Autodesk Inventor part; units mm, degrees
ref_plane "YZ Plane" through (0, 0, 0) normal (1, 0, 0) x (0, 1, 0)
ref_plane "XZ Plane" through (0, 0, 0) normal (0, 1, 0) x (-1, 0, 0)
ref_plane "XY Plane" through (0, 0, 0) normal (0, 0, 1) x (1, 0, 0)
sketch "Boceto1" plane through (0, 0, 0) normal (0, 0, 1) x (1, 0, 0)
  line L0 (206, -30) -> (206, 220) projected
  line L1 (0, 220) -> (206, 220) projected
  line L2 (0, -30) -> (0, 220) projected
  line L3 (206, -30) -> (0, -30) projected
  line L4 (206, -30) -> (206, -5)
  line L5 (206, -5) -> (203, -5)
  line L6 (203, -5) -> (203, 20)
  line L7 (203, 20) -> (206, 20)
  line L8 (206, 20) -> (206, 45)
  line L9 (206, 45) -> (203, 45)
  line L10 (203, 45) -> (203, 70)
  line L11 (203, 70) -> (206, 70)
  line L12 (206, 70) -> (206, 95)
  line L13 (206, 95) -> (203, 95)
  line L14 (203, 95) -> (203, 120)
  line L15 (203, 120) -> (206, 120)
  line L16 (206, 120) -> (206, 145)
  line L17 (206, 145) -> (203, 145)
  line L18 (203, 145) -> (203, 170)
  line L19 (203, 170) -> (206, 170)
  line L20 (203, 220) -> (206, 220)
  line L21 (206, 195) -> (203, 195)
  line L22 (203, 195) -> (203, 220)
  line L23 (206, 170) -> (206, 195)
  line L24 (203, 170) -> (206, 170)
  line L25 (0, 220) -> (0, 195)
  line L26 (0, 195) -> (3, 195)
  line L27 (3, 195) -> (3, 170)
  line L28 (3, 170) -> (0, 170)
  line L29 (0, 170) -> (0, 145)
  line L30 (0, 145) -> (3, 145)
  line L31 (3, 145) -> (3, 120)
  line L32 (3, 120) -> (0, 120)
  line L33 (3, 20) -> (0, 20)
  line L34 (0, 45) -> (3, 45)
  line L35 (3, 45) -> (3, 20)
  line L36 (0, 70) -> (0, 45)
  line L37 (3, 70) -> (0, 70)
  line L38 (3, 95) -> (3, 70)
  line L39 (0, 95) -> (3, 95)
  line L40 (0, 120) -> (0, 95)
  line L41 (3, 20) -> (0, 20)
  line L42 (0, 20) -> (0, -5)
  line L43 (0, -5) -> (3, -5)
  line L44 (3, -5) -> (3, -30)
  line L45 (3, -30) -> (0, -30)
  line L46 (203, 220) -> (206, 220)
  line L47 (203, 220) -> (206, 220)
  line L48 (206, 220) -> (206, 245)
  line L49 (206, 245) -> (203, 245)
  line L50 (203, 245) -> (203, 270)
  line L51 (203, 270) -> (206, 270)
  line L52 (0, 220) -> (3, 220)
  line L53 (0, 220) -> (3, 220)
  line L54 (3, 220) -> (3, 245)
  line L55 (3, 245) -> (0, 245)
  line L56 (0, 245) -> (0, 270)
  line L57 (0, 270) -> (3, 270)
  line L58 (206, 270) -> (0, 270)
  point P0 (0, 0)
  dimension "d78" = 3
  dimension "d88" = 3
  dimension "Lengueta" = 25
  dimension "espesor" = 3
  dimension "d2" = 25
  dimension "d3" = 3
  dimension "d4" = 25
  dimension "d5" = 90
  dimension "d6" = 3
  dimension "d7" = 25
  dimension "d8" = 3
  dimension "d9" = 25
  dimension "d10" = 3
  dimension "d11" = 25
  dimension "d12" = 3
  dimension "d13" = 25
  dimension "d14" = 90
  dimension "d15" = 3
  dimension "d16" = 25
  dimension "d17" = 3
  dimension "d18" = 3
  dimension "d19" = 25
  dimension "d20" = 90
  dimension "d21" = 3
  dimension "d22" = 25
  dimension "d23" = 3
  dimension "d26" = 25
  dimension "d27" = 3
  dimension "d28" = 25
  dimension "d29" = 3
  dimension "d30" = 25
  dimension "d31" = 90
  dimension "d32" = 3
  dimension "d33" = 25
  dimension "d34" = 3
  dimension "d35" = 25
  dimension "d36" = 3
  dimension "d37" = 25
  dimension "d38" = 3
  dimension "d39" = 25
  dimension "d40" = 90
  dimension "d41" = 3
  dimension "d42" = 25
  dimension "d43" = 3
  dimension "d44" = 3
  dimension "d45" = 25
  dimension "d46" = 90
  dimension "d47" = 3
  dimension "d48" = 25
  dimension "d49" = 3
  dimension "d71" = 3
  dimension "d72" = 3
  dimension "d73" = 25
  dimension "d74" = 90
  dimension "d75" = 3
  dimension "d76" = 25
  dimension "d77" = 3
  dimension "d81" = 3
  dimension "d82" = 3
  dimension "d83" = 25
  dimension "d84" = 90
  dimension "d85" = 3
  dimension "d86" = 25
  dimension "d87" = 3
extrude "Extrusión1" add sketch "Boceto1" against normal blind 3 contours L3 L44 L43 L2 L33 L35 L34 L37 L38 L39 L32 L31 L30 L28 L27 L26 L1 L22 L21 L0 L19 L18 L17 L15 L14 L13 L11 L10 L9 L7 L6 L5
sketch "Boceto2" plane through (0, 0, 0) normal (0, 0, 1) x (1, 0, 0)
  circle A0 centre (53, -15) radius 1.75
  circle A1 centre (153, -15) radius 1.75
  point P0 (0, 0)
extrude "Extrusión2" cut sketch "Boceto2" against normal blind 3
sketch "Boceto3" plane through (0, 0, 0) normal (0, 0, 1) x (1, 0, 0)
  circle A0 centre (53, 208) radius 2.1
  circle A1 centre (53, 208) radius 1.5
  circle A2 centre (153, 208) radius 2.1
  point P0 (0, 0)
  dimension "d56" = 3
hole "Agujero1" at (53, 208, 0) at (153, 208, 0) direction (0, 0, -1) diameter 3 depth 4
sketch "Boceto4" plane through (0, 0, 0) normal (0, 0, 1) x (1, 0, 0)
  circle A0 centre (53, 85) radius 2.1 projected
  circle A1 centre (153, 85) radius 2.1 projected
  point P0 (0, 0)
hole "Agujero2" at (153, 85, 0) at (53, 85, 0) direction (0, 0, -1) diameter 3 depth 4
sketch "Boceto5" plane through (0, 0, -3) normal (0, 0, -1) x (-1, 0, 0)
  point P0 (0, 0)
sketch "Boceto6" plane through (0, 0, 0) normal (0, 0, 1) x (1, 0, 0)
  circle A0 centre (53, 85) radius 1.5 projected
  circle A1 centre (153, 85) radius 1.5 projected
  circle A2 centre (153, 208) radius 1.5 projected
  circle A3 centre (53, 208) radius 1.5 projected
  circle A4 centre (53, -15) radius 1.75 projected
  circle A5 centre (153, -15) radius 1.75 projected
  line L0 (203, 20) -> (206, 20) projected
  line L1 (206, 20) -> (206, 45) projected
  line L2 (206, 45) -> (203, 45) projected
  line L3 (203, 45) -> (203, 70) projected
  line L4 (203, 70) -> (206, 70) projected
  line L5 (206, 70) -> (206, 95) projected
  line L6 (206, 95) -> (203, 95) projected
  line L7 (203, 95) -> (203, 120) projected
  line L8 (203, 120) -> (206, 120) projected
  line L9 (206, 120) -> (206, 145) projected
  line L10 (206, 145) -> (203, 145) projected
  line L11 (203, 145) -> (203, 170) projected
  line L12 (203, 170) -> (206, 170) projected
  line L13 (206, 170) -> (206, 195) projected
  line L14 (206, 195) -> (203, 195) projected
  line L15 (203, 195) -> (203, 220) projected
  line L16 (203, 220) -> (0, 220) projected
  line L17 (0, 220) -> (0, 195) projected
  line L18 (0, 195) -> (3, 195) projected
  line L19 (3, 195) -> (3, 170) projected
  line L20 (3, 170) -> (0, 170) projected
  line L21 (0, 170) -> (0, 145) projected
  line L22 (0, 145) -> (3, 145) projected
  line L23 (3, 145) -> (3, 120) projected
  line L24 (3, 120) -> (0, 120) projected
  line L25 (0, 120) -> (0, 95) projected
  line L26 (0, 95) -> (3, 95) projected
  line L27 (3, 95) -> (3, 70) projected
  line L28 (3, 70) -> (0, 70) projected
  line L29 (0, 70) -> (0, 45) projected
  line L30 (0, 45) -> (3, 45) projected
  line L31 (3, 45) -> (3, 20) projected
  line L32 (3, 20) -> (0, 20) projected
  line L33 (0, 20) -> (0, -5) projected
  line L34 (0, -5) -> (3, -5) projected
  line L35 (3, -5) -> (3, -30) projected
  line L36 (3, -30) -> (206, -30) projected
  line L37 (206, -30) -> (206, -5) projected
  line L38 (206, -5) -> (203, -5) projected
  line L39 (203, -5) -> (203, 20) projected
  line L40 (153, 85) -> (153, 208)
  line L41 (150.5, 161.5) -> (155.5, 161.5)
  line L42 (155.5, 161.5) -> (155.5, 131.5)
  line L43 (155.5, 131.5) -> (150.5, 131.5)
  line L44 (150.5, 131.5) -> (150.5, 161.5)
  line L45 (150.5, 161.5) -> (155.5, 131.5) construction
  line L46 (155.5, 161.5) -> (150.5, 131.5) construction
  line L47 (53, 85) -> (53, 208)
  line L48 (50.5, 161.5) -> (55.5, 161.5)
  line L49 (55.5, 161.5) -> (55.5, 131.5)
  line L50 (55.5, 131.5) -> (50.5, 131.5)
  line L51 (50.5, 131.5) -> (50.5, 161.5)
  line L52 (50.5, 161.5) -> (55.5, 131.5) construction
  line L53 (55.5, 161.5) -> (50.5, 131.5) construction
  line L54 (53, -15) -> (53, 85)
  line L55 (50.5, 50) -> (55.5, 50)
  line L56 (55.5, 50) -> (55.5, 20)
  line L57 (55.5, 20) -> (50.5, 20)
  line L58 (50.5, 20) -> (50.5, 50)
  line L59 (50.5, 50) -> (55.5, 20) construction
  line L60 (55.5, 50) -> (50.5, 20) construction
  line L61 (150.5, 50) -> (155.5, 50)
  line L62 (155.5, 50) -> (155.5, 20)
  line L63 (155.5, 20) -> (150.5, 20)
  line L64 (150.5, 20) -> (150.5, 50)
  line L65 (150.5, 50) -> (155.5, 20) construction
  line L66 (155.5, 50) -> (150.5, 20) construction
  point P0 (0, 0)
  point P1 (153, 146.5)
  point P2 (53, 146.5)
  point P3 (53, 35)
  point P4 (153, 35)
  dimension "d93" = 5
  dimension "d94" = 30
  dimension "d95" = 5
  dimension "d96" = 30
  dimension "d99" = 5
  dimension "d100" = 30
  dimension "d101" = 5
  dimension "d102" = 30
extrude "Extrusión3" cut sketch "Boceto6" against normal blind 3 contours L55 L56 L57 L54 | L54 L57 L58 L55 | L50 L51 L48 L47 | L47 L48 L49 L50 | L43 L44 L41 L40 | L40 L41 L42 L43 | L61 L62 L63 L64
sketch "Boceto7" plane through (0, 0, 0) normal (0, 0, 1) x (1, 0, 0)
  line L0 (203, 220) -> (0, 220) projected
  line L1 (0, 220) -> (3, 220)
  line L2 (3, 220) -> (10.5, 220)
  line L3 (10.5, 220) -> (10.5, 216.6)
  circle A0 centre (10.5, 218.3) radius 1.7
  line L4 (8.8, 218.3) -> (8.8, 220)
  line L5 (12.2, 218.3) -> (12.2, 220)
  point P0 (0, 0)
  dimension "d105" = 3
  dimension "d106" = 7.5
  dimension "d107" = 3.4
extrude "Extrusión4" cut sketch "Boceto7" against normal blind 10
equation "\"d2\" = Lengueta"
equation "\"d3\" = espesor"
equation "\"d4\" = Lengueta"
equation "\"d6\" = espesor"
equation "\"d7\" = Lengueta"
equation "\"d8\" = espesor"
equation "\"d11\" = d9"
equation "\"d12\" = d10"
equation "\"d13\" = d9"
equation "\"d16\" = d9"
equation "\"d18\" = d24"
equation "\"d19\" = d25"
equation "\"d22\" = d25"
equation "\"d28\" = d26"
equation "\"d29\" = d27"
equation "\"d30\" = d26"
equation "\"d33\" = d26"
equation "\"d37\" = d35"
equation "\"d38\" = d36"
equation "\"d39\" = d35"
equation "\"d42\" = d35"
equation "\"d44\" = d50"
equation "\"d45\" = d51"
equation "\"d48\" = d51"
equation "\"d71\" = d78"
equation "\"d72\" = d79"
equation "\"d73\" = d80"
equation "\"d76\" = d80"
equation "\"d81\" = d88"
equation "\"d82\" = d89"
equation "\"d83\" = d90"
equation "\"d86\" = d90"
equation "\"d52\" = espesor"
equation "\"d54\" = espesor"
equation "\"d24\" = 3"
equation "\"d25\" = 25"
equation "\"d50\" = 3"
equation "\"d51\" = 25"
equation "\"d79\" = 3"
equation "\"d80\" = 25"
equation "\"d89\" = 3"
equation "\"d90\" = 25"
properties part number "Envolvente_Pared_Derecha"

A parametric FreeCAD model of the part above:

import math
import FreeCAD as App
import Part
import Sketcher

V = App.Vector
Q = App.Units.Quantity

doc = App.newDocument("Part")
body = doc.addObject("PartDesign::Body", "Body")

# Sketch on XY plane
sketch1 = body.newObject("Sketcher::SketchObject", "Sketch")
sketch1.AttachmentSupport = (doc.getObject("XY_Plane"), [""])
sketch1.MapMode = "FlatFace"
sketch1.addGeometry(Part.LineSegment(V(3, -30, 0), V(206, -30, 0)), False)
sketch1.addGeometry(Part.LineSegment(V(206, -30, 0), V(206, -5, 0)), False)
sketch1.addGeometry(Part.LineSegment(V(206, -5, 0), V(203, -5, 0)), False)
sketch1.addGeometry(Part.LineSegment(V(203, -5, 0), V(203, 20, 0)), False)
sketch1.addGeometry(Part.LineSegment(V(203, 20, 0), V(206, 20, 0)), False)
sketch1.addGeometry(Part.LineSegment(V(206, 20, 0), V(206, 45, 0)), False)
sketch1.addGeometry(Part.LineSegment(V(206, 45, 0), V(203, 45, 0)), False)
sketch1.addGeometry(Part.LineSegment(V(203, 45, 0), V(203, 70, 0)), False)
sketch1.addGeometry(Part.LineSegment(V(203, 70, 0), V(206, 70, 0)), False)
sketch1.addGeometry(Part.LineSegment(V(206, 70, 0), V(206, 95, 0)), False)
sketch1.addGeometry(Part.LineSegment(V(206, 95, 0), V(203, 95, 0)), False)
sketch1.addGeometry(Part.LineSegment(V(203, 95, 0), V(203, 120, 0)), False)
sketch1.addGeometry(Part.LineSegment(V(203, 120, 0), V(206, 120, 0)), False)
sketch1.addGeometry(Part.LineSegment(V(206, 120, 0), V(206, 145, 0)), False)
sketch1.addGeometry(Part.LineSegment(V(206, 145, 0), V(203, 145, 0)), False)
sketch1.addGeometry(Part.LineSegment(V(203, 145, 0), V(203, 170, 0)), False)
sketch1.addGeometry(Part.LineSegment(V(203, 170, 0), V(206, 170, 0)), False)
sketch1.addGeometry(Part.LineSegment(V(206, 170, 0), V(206, 195, 0)), False)
sketch1.addGeometry(Part.LineSegment(V(206, 195, 0), V(203, 195, 0)), False)
sketch1.addGeometry(Part.LineSegment(V(203, 195, 0), V(203, 220, 0)), False)
sketch1.addGeometry(Part.LineSegment(V(203, 220, 0), V(0, 220, 0)), False)
sketch1.addGeometry(Part.LineSegment(V(0, 220, 0), V(0, 195, 0)), False)
sketch1.addGeometry(Part.LineSegment(V(0, 195, 0), V(3, 195, 0)), False)
sketch1.addGeometry(Part.LineSegment(V(3, 195, 0), V(3, 170, 0)), False)
sketch1.addGeometry(Part.LineSegment(V(3, 170, 0), V(0, 170, 0)), False)
sketch1.addGeometry(Part.LineSegment(V(0, 170, 0), V(0, 145, 0)), False)
sketch1.addGeometry(Part.LineSegment(V(0, 145, 0), V(3, 145, 0)), False)
sketch1.addGeometry(Part.LineSegment(V(3, 145, 0), V(3, 120, 0)), False)
sketch1.addGeometry(Part.LineSegment(V(3, 120, 0), V(0, 120, 0)), False)
sketch1.addGeometry(Part.LineSegment(V(0, 120, 0), V(0, 95, 0)), False)
sketch1.addGeometry(Part.LineSegment(V(0, 95, 0), V(3, 95, 0)), False)
sketch1.addGeometry(Part.LineSegment(V(3, 95, 0), V(3, 70, 0)), False)
sketch1.addGeometry(Part.LineSegment(V(3, 70, 0), V(0, 70, 0)), False)
sketch1.addGeometry(Part.LineSegment(V(0, 70, 0), V(0, 45, 0)), False)
sketch1.addGeometry(Part.LineSegment(V(0, 45, 0), V(3, 45, 0)), False)
sketch1.addGeometry(Part.LineSegment(V(3, 45, 0), V(3, 20, 0)), False)
sketch1.addGeometry(Part.LineSegment(V(3, 20, 0), V(0, 20, 0)), False)
sketch1.addGeometry(Part.LineSegment(V(0, 20, 0), V(0, -5, 0)), False)
sketch1.addGeometry(Part.LineSegment(V(0, -5, 0), V(3, -5, 0)), False)
sketch1.addGeometry(Part.LineSegment(V(3, -5, 0), V(3, -30, 0)), False)
sketch1.addConstraint(Sketcher.Constraint("Coincident", 0, 2, 1, 1))
sketch1.addConstraint(Sketcher.Constraint("Coincident", 1, 2, 2, 1))
sketch1.addConstraint(Sketcher.Constraint("Coincident", 2, 2, 3, 1))
sketch1.addConstraint(Sketcher.Constraint("Coincident", 3, 2, 4, 1))
sketch1.addConstraint(Sketcher.Constraint("Coincident", 4, 2, 5, 1))
sketch1.addConstraint(Sketcher.Constraint("Coincident", 5, 2, 6, 1))
sketch1.addConstraint(Sketcher.Constraint("Coincident", 6, 2, 7, 1))
sketch1.addConstraint(Sketcher.Constraint("Coincident", 7, 2, 8, 1))
sketch1.addConstraint(Sketcher.Constraint("Coincident", 8, 2, 9, 1))
sketch1.addConstraint(Sketcher.Constraint("Coincident", 9, 2, 10, 1))
sketch1.addConstraint(Sketcher.Constraint("Coincident", 10, 2, 11, 1))
sketch1.addConstraint(Sketcher.Constraint("Coincident", 11, 2, 12, 1))
sketch1.addConstraint(Sketcher.Constraint("Coincident", 12, 2, 13, 1))
sketch1.addConstraint(Sketcher.Constraint("Coincident", 13, 2, 14, 1))
sketch1.addConstraint(Sketcher.Constraint("Coincident", 14, 2, 15, 1))
sketch1.addConstraint(Sketcher.Constraint("Coincident", 15, 2, 16, 1))
sketch1.addConstraint(Sketcher.Constraint("Coincident", 16, 2, 17, 1))
sketch1.addConstraint(Sketcher.Constraint("Coincident", 17, 2, 18, 1))
sketch1.addConstraint(Sketcher.Constraint("Coincident", 18, 2, 19, 1))
sketch1.addConstraint(Sketcher.Constraint("Coincident", 19, 2, 20, 1))
sketch1.addConstraint(Sketcher.Constraint("Coincident", 20, 2, 21, 1))
sketch1.addConstraint(Sketcher.Constraint("Coincident", 21, 2, 22, 1))
sketch1.addConstraint(Sketcher.Constraint("Coincident", 22, 2, 23, 1))
sketch1.addConstraint(Sketcher.Constraint("Coincident", 23, 2, 24, 1))
sketch1.addConstraint(Sketcher.Constraint("Coincident", 24, 2, 25, 1))
sketch1.addConstraint(Sketcher.Constraint("Coincident", 25, 2, 26, 1))
sketch1.addConstraint(Sketcher.Constraint("Coincident", 26, 2, 27, 1))
sketch1.addConstraint(Sketcher.Constraint("Coincident", 27, 2, 28, 1))
sketch1.addConstraint(Sketcher.Constraint("Coincident", 28, 2, 29, 1))
sketch1.addConstraint(Sketcher.Constraint("Coincident", 29, 2, 30, 1))
sketch1.addConstraint(Sketcher.Constraint("Coincident", 30, 2, 31, 1))
sketch1.addConstraint(Sketcher.Constraint("Coincident", 31, 2, 32, 1))
sketch1.addConstraint(Sketcher.Constraint("Coincident", 32, 2, 33, 1))
sketch1.addConstraint(Sketcher.Constraint("Coincident", 33, 2, 34, 1))
sketch1.addConstraint(Sketcher.Constraint("Coincident", 34, 2, 35, 1))
sketch1.addConstraint(Sketcher.Constraint("Coincident", 35, 2, 36, 1))
sketch1.addConstraint(Sketcher.Constraint("Coincident", 36, 2, 37, 1))
sketch1.addConstraint(Sketcher.Constraint("Coincident", 37, 2, 38, 1))
sketch1.addConstraint(Sketcher.Constraint("Coincident", 38, 2, 39, 1))
sketch1.addConstraint(Sketcher.Constraint("Coincident", 39, 2, 0, 1))
sketch1.addConstraint(Sketcher.Constraint("Horizontal", 0))
sketch1.addConstraint(Sketcher.Constraint("Vertical", 1))
sketch1.addConstraint(Sketcher.Constraint("Horizontal", 2))
sketch1.addConstraint(Sketcher.Constraint("Vertical", 3))
sketch1.addConstraint(Sketcher.Constraint("Horizontal", 4))
sketch1.addConstraint(Sketcher.Constraint("Vertical", 5))
sketch1.addConstraint(Sketcher.Constraint("Horizontal", 6))
sketch1.addConstraint(Sketcher.Constraint("Vertical", 7))
sketch1.addConstraint(Sketcher.Constraint("Horizontal", 8))
sketch1.addConstraint(Sketcher.Constraint("Vertical", 9))
sketch1.addConstraint(Sketcher.Constraint("Horizontal", 10))
sketch1.addConstraint(Sketcher.Constraint("Vertical", 11))
sketch1.addConstraint(Sketcher.Constraint("Horizontal", 12))
sketch1.addConstraint(Sketcher.Constraint("Vertical", 13))
sketch1.addConstraint(Sketcher.Constraint("Horizontal", 14))
sketch1.addConstraint(Sketcher.Constraint("Vertical", 15))
sketch1.addConstraint(Sketcher.Constraint("Horizontal", 16))
sketch1.addConstraint(Sketcher.Constraint("Vertical", 17))
sketch1.addConstraint(Sketcher.Constraint("Horizontal", 18))
sketch1.addConstraint(Sketcher.Constraint("Vertical", 19))
sketch1.addConstraint(Sketcher.Constraint("Horizontal", 20))
sketch1.addConstraint(Sketcher.Constraint("Vertical", 21))
sketch1.addConstraint(Sketcher.Constraint("Horizontal", 22))
sketch1.addConstraint(Sketcher.Constraint("Vertical", 23))
sketch1.addConstraint(Sketcher.Constraint("Horizontal", 24))
sketch1.addConstraint(Sketcher.Constraint("Vertical", 25))
sketch1.addConstraint(Sketcher.Constraint("Horizontal", 26))
sketch1.addConstraint(Sketcher.Constraint("Vertical", 27))
sketch1.addConstraint(Sketcher.Constraint("Horizontal", 28))
sketch1.addConstraint(Sketcher.Constraint("Vertical", 29))
sketch1.addConstraint(Sketcher.Constraint("Horizontal", 30))
sketch1.addConstraint(Sketcher.Constraint("Vertical", 31))
sketch1.addConstraint(Sketcher.Constraint("Horizontal", 32))
sketch1.addConstraint(Sketcher.Constraint("Vertical", 33))
sketch1.addConstraint(Sketcher.Constraint("Horizontal", 34))
sketch1.addConstraint(Sketcher.Constraint("Vertical", 35))
sketch1.addConstraint(Sketcher.Constraint("Horizontal", 36))
sketch1.addConstraint(Sketcher.Constraint("Vertical", 37))
sketch1.addConstraint(Sketcher.Constraint("Horizontal", 38))
sketch1.addConstraint(Sketcher.Constraint("Vertical", 39))
sketch1.addConstraint(Sketcher.Constraint("PointOnObject", 20, 2, -2))
sketch1.addConstraint(Sketcher.Constraint("PointOnObject", 24, 2, -2))
sketch1.addConstraint(Sketcher.Constraint("PointOnObject", 28, 2, -2))
sketch1.addConstraint(Sketcher.Constraint("PointOnObject", 32, 2, -2))
sketch1.addConstraint(Sketcher.Constraint("PointOnObject", 36, 2, -2))
sketch1.addConstraint(Sketcher.Constraint("Horizontal", 18, 2, 21, 2))
sketch1.addConstraint(Sketcher.Constraint("Horizontal", 16, 2, 23, 2))
sketch1.addConstraint(Sketcher.Constraint("Horizontal", 14, 2, 25, 2))
sketch1.addConstraint(Sketcher.Constraint("Horizontal", 12, 2, 27, 2))
sketch1.addConstraint(Sketcher.Constraint("Horizontal", 10, 2, 29, 2))
sketch1.addConstraint(Sketcher.Constraint("Horizontal", 8, 2, 31, 2))
sketch1.addConstraint(Sketcher.Constraint("Horizontal", 6, 2, 33, 2))
sketch1.addConstraint(Sketcher.Constraint("Horizontal", 4, 2, 35, 2))
sketch1.addConstraint(Sketcher.Constraint("Horizontal", 2, 2, 37, 2))
sketch1.addConstraint(Sketcher.Constraint("Vertical", 1, 2, 4, 2))
sketch1.addConstraint(Sketcher.Constraint("Vertical", 3, 2, 6, 2))
sketch1.addConstraint(Sketcher.Constraint("Vertical", 5, 2, 8, 2))
sketch1.addConstraint(Sketcher.Constraint("Vertical", 7, 2, 10, 2))
sketch1.addConstraint(Sketcher.Constraint("Vertical", 9, 2, 12, 2))
sketch1.addConstraint(Sketcher.Constraint("Vertical", 11, 2, 14, 2))
sketch1.addConstraint(Sketcher.Constraint("Vertical", 13, 2, 16, 2))
sketch1.addConstraint(Sketcher.Constraint("Vertical", 15, 2, 18, 2))
sketch1.addConstraint(Sketcher.Constraint("Vertical", 23, 2, 26, 2))
sketch1.addConstraint(Sketcher.Constraint("Vertical", 27, 2, 30, 2))
sketch1.addConstraint(Sketcher.Constraint("Vertical", 31, 2, 34, 2))
sketch1.addConstraint(Sketcher.Constraint("Vertical", 35, 2, 38, 2))
sketch1.addConstraint(Sketcher.Constraint("Equal", 0, 20))
sketch1.addConstraint(Sketcher.Constraint("Equal", 1, 3))
sketch1.addConstraint(Sketcher.Constraint("Equal", 3, 5))
sketch1.addConstraint(Sketcher.Constraint("Equal", 5, 7))
sketch1.addConstraint(Sketcher.Constraint("Equal", 7, 9))
sketch1.addConstraint(Sketcher.Constraint("Equal", 9, 11))
sketch1.addConstraint(Sketcher.Constraint("Equal", 11, 13))
sketch1.addConstraint(Sketcher.Constraint("Equal", 13, 15))
sketch1.addConstraint(Sketcher.Constraint("Equal", 15, 17))
sketch1.addConstraint(Sketcher.Constraint("Equal", 17, 19))
sketch1.addConstraint(Sketcher.Constraint("DistanceX", 2, 2, 2, 1, Q("3 mm")))
sketch1.addConstraint(Sketcher.Constraint("DistanceY", 1, 1, 1, 2, Q("25 mm")))
sketch1.addConstraint(Sketcher.Constraint("DistanceX", 0, 1, 0, 2, Q("203 mm")))
sketch1.addConstraint(Sketcher.Constraint("DistanceY", 0, 2, -1, 1, Q("30 mm")))
pad1 = body.newObject("PartDesign::Pad", "Pad")
pad1.Profile = sketch1
pad1.Length = 3
pad1.Reversed = True

# Sketch on XY plane
sketch2 = body.newObject("Sketcher::SketchObject", "Sketch001")
sketch2.AttachmentSupport = (doc.getObject("XY_Plane"), [""])
sketch2.MapMode = "FlatFace"
sketch2.addGeometry(Part.Circle(V(53, -15, 0), V(0, 0, 1), 1.75), False)
sketch2.addGeometry(Part.Circle(V(153, -15, 0), V(0, 0, 1), 1.75), False)
sketch2.addConstraint(Sketcher.Constraint("Equal", 0, 1))
sketch2.addConstraint(Sketcher.Constraint("Horizontal", 0, 3, 1, 3))
sketch2.addConstraint(Sketcher.Constraint("Diameter", 0, Q("3.5 mm")))
sketch2.addConstraint(Sketcher.Constraint("DistanceX", -1, 1, 0, 3, Q("53 mm")))
sketch2.addConstraint(Sketcher.Constraint("DistanceY", 0, 3, -1, 1, Q("15 mm")))
sketch2.addConstraint(Sketcher.Constraint("DistanceX", -1, 1, 1, 3, Q("153 mm")))
pocket1 = body.newObject("PartDesign::Pocket", "Pocket")
pocket1.Profile = sketch2
pocket1.Length = 3

# Sketch on XY plane
sketch3 = body.newObject("Sketcher::SketchObject", "Sketch002")
sketch3.AttachmentSupport = (doc.getObject("XY_Plane"), [""])
sketch3.MapMode = "FlatFace"
sketch3.addGeometry(Part.Circle(V(53, 208, 0), V(0, 0, 1), 1.5), False)
sketch3.addGeometry(Part.Circle(V(153, 208, 0), V(0, 0, 1), 1.5), False)
sketch3.addConstraint(Sketcher.Constraint("Equal", 0, 1))
sketch3.addConstraint(Sketcher.Constraint("Horizontal", 0, 3, 1, 3))
sketch3.addConstraint(Sketcher.Constraint("Diameter", 0, Q("3 mm")))
sketch3.addConstraint(Sketcher.Constraint("DistanceX", -1, 1, 0, 3, Q("53 mm")))
sketch3.addConstraint(Sketcher.Constraint("DistanceY", -1, 1, 0, 3, Q("208 mm")))
sketch3.addConstraint(Sketcher.Constraint("DistanceX", -1, 1, 1, 3, Q("153 mm")))
doc.recompute()
hole = body.newObject("PartDesign::Hole", "Hole")
hole.Profile = sketch3
hole.ThreadType = "None"
hole.Diameter = 3
hole.DepthType = "Dimension"
hole.Depth = 4
hole.DrillPoint = "Flat"

# Sketch on XY plane
sketch4 = body.newObject("Sketcher::SketchObject", "Sketch003")
sketch4.AttachmentSupport = (doc.getObject("XY_Plane"), [""])
sketch4.MapMode = "FlatFace"
sketch4.addGeometry(Part.Circle(V(153, 85, 0), V(0, 0, 1), 1.5), False)
sketch4.addGeometry(Part.Circle(V(53, 85, 0), V(0, 0, 1), 1.5), False)
sketch4.addConstraint(Sketcher.Constraint("Equal", 0, 1))
sketch4.addConstraint(Sketcher.Constraint("Horizontal", 0, 3, 1, 3))
sketch4.addConstraint(Sketcher.Constraint("Diameter", 0, Q("3 mm")))
sketch4.addConstraint(Sketcher.Constraint("DistanceX", -1, 1, 0, 3, Q("153 mm")))
sketch4.addConstraint(Sketcher.Constraint("DistanceY", -1, 1, 0, 3, Q("85 mm")))
sketch4.addConstraint(Sketcher.Constraint("DistanceX", -1, 1, 1, 3, Q("53 mm")))
doc.recompute()
hole2 = body.newObject("PartDesign::Hole", "Hole001")
hole2.Profile = sketch4
hole2.ThreadType = "None"
hole2.Diameter = 3
hole2.DepthType = "Dimension"
hole2.Depth = 4
hole2.DrillPoint = "Flat"

# Sketch on XY plane
sketch5 = body.newObject("Sketcher::SketchObject", "Sketch004")
sketch5.AttachmentSupport = (doc.getObject("XY_Plane"), [""])
sketch5.MapMode = "FlatFace"
sketch5.addGeometry(Part.LineSegment(V(55.5, 50, 0), V(50.5, 50, 0)), False)
sketch5.addGeometry(Part.LineSegment(V(50.5, 50, 0), V(50.5, 20, 0)), False)
sketch5.addGeometry(Part.LineSegment(V(50.5, 20, 0), V(55.5, 20, 0)), False)
sketch5.addGeometry(Part.LineSegment(V(55.5, 20, 0), V(55.5, 50, 0)), False)
sketch5.addGeometry(Part.LineSegment(V(50.5, 131.5, 0), V(55.5, 131.5, 0)), False)
sketch5.addGeometry(Part.LineSegment(V(55.5, 131.5, 0), V(55.5, 161.5, 0)), False)
sketch5.addGeometry(Part.LineSegment(V(55.5, 161.5, 0), V(50.5, 161.5, 0)), False)
sketch5.addGeometry(Part.LineSegment(V(50.5, 161.5, 0), V(50.5, 131.5, 0)), False)
sketch5.addGeometry(Part.LineSegment(V(150.5, 131.5, 0), V(155.5, 131.5, 0)), False)
sketch5.addGeometry(Part.LineSegment(V(155.5, 131.5, 0), V(155.5, 161.5, 0)), False)
sketch5.addGeometry(Part.LineSegment(V(155.5, 161.5, 0), V(150.5, 161.5, 0)), False)
sketch5.addGeometry(Part.LineSegment(V(150.5, 161.5, 0), V(150.5, 131.5, 0)), False)
sketch5.addGeometry(Part.LineSegment(V(155.5, 50, 0), V(150.5, 50, 0)), False)
sketch5.addGeometry(Part.LineSegment(V(150.5, 50, 0), V(150.5, 20, 0)), False)
sketch5.addGeometry(Part.LineSegment(V(150.5, 20, 0), V(155.5, 20, 0)), False)
sketch5.addGeometry(Part.LineSegment(V(155.5, 20, 0), V(155.5, 50, 0)), False)
sketch5.addConstraint(Sketcher.Constraint("Coincident", 0, 2, 1, 1))
sketch5.addConstraint(Sketcher.Constraint("Coincident", 1, 2, 2, 1))
sketch5.addConstraint(Sketcher.Constraint("Coincident", 2, 2, 3, 1))
sketch5.addConstraint(Sketcher.Constraint("Coincident", 3, 2, 0, 1))
sketch5.addConstraint(Sketcher.Constraint("Coincident", 4, 2, 5, 1))
sketch5.addConstraint(Sketcher.Constraint("Coincident", 5, 2, 6, 1))
sketch5.addConstraint(Sketcher.Constraint("Coincident", 6, 2, 7, 1))
sketch5.addConstraint(Sketcher.Constraint("Coincident", 7, 2, 4, 1))
sketch5.addConstraint(Sketcher.Constraint("Coincident", 8, 2, 9, 1))
sketch5.addConstraint(Sketcher.Constraint("Coincident", 9, 2, 10, 1))
sketch5.addConstraint(Sketcher.Constraint("Coincident", 10, 2, 11, 1))
sketch5.addConstraint(Sketcher.Constraint("Coincident", 11, 2, 8, 1))
sketch5.addConstraint(Sketcher.Constraint("Coincident", 12, 2, 13, 1))
sketch5.addConstraint(Sketcher.Constraint("Coincident", 13, 2, 14, 1))
sketch5.addConstraint(Sketcher.Constraint("Coincident", 14, 2, 15, 1))
sketch5.addConstraint(Sketcher.Constraint("Coincident", 15, 2, 12, 1))
sketch5.addConstraint(Sketcher.Constraint("Horizontal", 0))
sketch5.addConstraint(Sketcher.Constraint("Vertical", 1))
sketch5.addConstraint(Sketcher.Constraint("Horizontal", 2))
sketch5.addConstraint(Sketcher.Constraint("Vertical", 3))
sketch5.addConstraint(Sketcher.Constraint("Horizontal", 4))
sketch5.addConstraint(Sketcher.Constraint("Vertical", 5))
sketch5.addConstraint(Sketcher.Constraint("Horizontal", 6))
sketch5.addConstraint(Sketcher.Constraint("Vertical", 7))
sketch5.addConstraint(Sketcher.Constraint("Horizontal", 8))
sketch5.addConstraint(Sketcher.Constraint("Vertical", 9))
sketch5.addConstraint(Sketcher.Constraint("Horizontal", 10))
sketch5.addConstraint(Sketcher.Constraint("Vertical", 11))
sketch5.addConstraint(Sketcher.Constraint("Horizontal", 12))
sketch5.addConstraint(Sketcher.Constraint("Vertical", 13))
sketch5.addConstraint(Sketcher.Constraint("Horizontal", 14))
sketch5.addConstraint(Sketcher.Constraint("Vertical", 15))
sketch5.addConstraint(Sketcher.Constraint("Horizontal", 7, 2, 8, 2))
sketch5.addConstraint(Sketcher.Constraint("Horizontal", 6, 2, 9, 2))
sketch5.addConstraint(Sketcher.Constraint("Horizontal", 3, 2, 12, 2))
sketch5.addConstraint(Sketcher.Constraint("Horizontal", 2, 2, 13, 2))
sketch5.addConstraint(Sketcher.Constraint("Vertical", 3, 2, 4, 2))
sketch5.addConstraint(Sketcher.Constraint("Vertical", 1, 2, 6, 2))
sketch5.addConstraint(Sketcher.Constraint("Vertical", 11, 2, 12, 2))
sketch5.addConstraint(Sketcher.Constraint("Vertical", 9, 2, 14, 2))
sketch5.addConstraint(Sketcher.Constraint("Equal", 6, 8))
sketch5.addConstraint(Sketcher.Constraint("Equal", 3, 5))
sketch5.addConstraint(Sketcher.Constraint("DistanceX", 0, 2, 0, 1, Q("5 mm")))
sketch5.addConstraint(Sketcher.Constraint("DistanceY", 1, 2, 1, 1, Q("30 mm")))
sketch5.addConstraint(Sketcher.Constraint("DistanceY", -1, 1, 0, 2, Q("50 mm")))
sketch5.addConstraint(Sketcher.Constraint("DistanceX", 4, 2, 8, 2, Q("100 mm")))
sketch5.addConstraint(Sketcher.Constraint("DistanceX", -1, 1, 0, 2, Q("50.5 mm")))
sketch5.addConstraint(Sketcher.Constraint("DistanceY", -1, 1, 4, 2, Q("131.5 mm")))
pocket2 = body.newObject("PartDesign::Pocket", "Pocket001")
pocket2.Profile = sketch5
pocket2.Length = 3

# Sketch on XY plane
sketch6 = body.newObject("Sketcher::SketchObject", "Sketch005")
sketch6.AttachmentSupport = (doc.getObject("XY_Plane"), [""])
sketch6.MapMode = "FlatFace"
sketch6.addGeometry(Part.LineSegment(V(12.2, 218.3, 0), V(12.2, 220, 0)), False)
sketch6.addGeometry(Part.LineSegment(V(12.2, 220, 0), V(8.8, 220, 0)), False)
sketch6.addGeometry(Part.LineSegment(V(8.8, 220, 0), V(8.8, 218.3, 0)), False)
sketch6.addGeometry(Part.ArcOfCircle(Part.Circle(V(10.5, 218.3, 0), V(0, 0, 1), 1.7), math.radians(180), math.radians(360)), False)
sketch6.addConstraint(Sketcher.Constraint("Coincident", 0, 2, 1, 1))
sketch6.addConstraint(Sketcher.Constraint("Coincident", 1, 2, 2, 1))
sketch6.addConstraint(Sketcher.Constraint("Tangent", 2, 2, 3, 1))
sketch6.addConstraint(Sketcher.Constraint("Tangent", 3, 2, 0, 1))
sketch6.addConstraint(Sketcher.Constraint("Vertical", 0))
sketch6.addConstraint(Sketcher.Constraint("Horizontal", 1))
sketch6.addConstraint(Sketcher.Constraint("Vertical", 2))
sketch6.addConstraint(Sketcher.Constraint("Radius", 3, Q("1.7 mm")))
sketch6.addConstraint(Sketcher.Constraint("DistanceY", 0, 1, 0, 2, Q("1.7 mm")))
sketch6.addConstraint(Sketcher.Constraint("DistanceY", -1, 1, 0, 2, Q("220 mm")))
sketch6.addConstraint(Sketcher.Constraint("DistanceX", -1, 1, 3, 3, Q("10.5 mm")))
pocket3 = body.newObject("PartDesign::Pocket", "Pocket002")
pocket3.Profile = sketch6
pocket3.Length = 10

doc.recompute()
